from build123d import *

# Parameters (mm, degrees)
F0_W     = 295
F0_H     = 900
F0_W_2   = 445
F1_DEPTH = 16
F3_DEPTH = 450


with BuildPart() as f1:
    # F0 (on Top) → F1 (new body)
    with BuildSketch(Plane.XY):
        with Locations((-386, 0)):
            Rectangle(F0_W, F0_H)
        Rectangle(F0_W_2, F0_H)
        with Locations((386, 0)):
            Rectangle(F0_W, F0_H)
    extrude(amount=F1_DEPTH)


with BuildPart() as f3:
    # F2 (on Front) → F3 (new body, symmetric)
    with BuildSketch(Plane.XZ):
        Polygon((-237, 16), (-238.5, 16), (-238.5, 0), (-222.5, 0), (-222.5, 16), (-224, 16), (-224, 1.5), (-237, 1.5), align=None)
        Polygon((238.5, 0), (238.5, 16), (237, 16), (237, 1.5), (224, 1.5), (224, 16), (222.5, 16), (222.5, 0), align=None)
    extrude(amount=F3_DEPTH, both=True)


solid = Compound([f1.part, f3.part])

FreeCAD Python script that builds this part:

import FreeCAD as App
import Part
import Sketcher

V = App.Vector
Q = App.Units.Quantity


def add_polygon(sketch, points):
    """Adds a closed chain of lines whose ends are joined by coincident constraints."""
    first, n = sketch.GeometryCount, len(points)
    for a, b in zip(points, points[1:] + points[:1]):
        sketch.addGeometry(Part.LineSegment(App.Vector(*a, 0), App.Vector(*b, 0)), False)
    for i in range(n):
        sketch.addConstraint(Sketcher.Constraint("Coincident", first + i, 2, first + (i + 1) % n, 1))

doc = App.newDocument("Part")
body = doc.addObject("PartDesign::Body", "Body")
body.AllowCompound = True

# Sketch on XY plane
sketch1 = doc.addObject("Sketcher::SketchObject", "Sketch")
body.addObject(sketch1)
sketch1.AttachmentSupport = (doc.XY_Plane, [""])
sketch1.MapMode = "FlatFace"
add_polygon(sketch1, [(-534, 450), (-534, -450), (-238, -450), (-238, 450)])  # lines 0-3
add_polygon(sketch1, [(-222, 450), (-222, -450), (222, -450), (222, 450)])  # lines 4-7
add_polygon(sketch1, [(238, 450), (238, -450), (534, -450), (534, 450)])  # lines 8-11
sketch1.addConstraint([
    Sketcher.Constraint("Vertical", 0),
    Sketcher.Constraint("Horizontal", 1),
    Sketcher.Constraint("Vertical", 2),
    Sketcher.Constraint("Horizontal", 3),
    Sketcher.Constraint("Vertical", 4),
    Sketcher.Constraint("Horizontal", 5),
    Sketcher.Constraint("Vertical", 6),
    Sketcher.Constraint("Horizontal", 7),
    Sketcher.Constraint("Vertical", 8),
    Sketcher.Constraint("Horizontal", 9),
    Sketcher.Constraint("Vertical", 10),
    Sketcher.Constraint("Horizontal", 11),
    Sketcher.Constraint("Symmetric", 4, 2, 6, 2, -1, 1),
    Sketcher.Constraint("Symmetric", 2, 2, 8, 2, -1, 1),
    Sketcher.Constraint("Symmetric", 0, 2, 10, 2, -1, 1),
    Sketcher.Constraint("Horizontal", 1, 2, 4, 2),
    Sketcher.Constraint("Horizontal", 3, 2, 6, 2),
    Sketcher.Constraint("DistanceX", 1, 1, 1, 2, Q("295 mm")),
    Sketcher.Constraint("DistanceX", 5, 1, 5, 2, Q("445 mm")),
    Sketcher.Constraint("DistanceY", 0, 2, 0, 1, Q("900 mm")),
    Sketcher.Constraint("DistanceX", 1, 2, 4, 2, Q("16 mm")),
])
pad1 = doc.addObject("PartDesign::Pad", "Pad")
body.addObject(pad1)
pad1.Profile = sketch1
pad1.Length = 16
body2 = doc.addObject("PartDesign::Body", "Body001")
body2.AllowCompound = True

# Sketch on XZ plane
sketch2 = doc.addObject("Sketcher::SketchObject", "Sketch001")
body2.addObject(sketch2)
sketch2.AttachmentSupport = (doc.getObject("XZ_Plane001"), [""])
sketch2.MapMode = "FlatFace"
add_polygon(sketch2, [(-237, 16), (-238.5, 16), (-238.5, 0), (-222.5, 0), (-222.5, 16), (-224, 16), (-224, 1.5), (-237, 1.5)])  # lines 0-7
add_polygon(sketch2, [(238.5, 0), (238.5, 16), (237, 16), (237, 1.5), (224, 1.5), (224, 16), (222.5, 16), (222.5, 0)])  # lines 8-15
sketch2.addConstraint([
    Sketcher.Constraint("Horizontal", 0),
    Sketcher.Constraint("Vertical", 1),
    Sketcher.Constraint("Horizontal", 2),
    Sketcher.Constraint("Vertical", 3),
    Sketcher.Constraint("Horizontal", 4),
    Sketcher.Constraint("Vertical", 5),
    Sketcher.Constraint("Horizontal", 6),
    Sketcher.Constraint("Vertical", 7),
    Sketcher.Constraint("Vertical", 8),
    Sketcher.Constraint("Horizontal", 9),
    Sketcher.Constraint("Vertical", 10),
    Sketcher.Constraint("Horizontal", 11),
    Sketcher.Constraint("Vertical", 12),
    Sketcher.Constraint("Horizontal", 13),
    Sketcher.Constraint("Vertical", 14),
    Sketcher.Constraint("Horizontal", 15),
    Sketcher.Constraint("Symmetric", 2, 2, 14, 2, -1, 1),
    Sketcher.Constraint("Symmetric", 0, 2, 8, 2, -2),
    Sketcher.Constraint("Symmetric", 6, 2, 10, 2, -2),
    Sketcher.Constraint("Symmetric", 4, 2, 12, 2, -2),
    Sketcher.Constraint("PointOnObject", 1, 2, -1),
    Sketcher.Constraint("Horizontal", 0, 2, 3, 2),
    Sketcher.Constraint("Equal", 0, 4),
    Sketcher.Constraint("Equal", 15, 1),
    Sketcher.Constraint("DistanceX", 2, 1, 2, 2, Q("16 mm")),
    Sketcher.Constraint("DistanceX", 6, 2, 6, 1, Q("13 mm")),
    Sketcher.Constraint("DistanceY", 5, 2, 5, 1, Q("14.5 mm")),
    Sketcher.Constraint("DistanceX", 4, 2, -1, 1, Q("224 mm")),
])
pad2 = doc.addObject("PartDesign::Pad", "Pad001")
body2.addObject(pad2)
pad2.Profile = sketch2
pad2.Length = 900
pad2.Midplane = True

doc.recompute()
